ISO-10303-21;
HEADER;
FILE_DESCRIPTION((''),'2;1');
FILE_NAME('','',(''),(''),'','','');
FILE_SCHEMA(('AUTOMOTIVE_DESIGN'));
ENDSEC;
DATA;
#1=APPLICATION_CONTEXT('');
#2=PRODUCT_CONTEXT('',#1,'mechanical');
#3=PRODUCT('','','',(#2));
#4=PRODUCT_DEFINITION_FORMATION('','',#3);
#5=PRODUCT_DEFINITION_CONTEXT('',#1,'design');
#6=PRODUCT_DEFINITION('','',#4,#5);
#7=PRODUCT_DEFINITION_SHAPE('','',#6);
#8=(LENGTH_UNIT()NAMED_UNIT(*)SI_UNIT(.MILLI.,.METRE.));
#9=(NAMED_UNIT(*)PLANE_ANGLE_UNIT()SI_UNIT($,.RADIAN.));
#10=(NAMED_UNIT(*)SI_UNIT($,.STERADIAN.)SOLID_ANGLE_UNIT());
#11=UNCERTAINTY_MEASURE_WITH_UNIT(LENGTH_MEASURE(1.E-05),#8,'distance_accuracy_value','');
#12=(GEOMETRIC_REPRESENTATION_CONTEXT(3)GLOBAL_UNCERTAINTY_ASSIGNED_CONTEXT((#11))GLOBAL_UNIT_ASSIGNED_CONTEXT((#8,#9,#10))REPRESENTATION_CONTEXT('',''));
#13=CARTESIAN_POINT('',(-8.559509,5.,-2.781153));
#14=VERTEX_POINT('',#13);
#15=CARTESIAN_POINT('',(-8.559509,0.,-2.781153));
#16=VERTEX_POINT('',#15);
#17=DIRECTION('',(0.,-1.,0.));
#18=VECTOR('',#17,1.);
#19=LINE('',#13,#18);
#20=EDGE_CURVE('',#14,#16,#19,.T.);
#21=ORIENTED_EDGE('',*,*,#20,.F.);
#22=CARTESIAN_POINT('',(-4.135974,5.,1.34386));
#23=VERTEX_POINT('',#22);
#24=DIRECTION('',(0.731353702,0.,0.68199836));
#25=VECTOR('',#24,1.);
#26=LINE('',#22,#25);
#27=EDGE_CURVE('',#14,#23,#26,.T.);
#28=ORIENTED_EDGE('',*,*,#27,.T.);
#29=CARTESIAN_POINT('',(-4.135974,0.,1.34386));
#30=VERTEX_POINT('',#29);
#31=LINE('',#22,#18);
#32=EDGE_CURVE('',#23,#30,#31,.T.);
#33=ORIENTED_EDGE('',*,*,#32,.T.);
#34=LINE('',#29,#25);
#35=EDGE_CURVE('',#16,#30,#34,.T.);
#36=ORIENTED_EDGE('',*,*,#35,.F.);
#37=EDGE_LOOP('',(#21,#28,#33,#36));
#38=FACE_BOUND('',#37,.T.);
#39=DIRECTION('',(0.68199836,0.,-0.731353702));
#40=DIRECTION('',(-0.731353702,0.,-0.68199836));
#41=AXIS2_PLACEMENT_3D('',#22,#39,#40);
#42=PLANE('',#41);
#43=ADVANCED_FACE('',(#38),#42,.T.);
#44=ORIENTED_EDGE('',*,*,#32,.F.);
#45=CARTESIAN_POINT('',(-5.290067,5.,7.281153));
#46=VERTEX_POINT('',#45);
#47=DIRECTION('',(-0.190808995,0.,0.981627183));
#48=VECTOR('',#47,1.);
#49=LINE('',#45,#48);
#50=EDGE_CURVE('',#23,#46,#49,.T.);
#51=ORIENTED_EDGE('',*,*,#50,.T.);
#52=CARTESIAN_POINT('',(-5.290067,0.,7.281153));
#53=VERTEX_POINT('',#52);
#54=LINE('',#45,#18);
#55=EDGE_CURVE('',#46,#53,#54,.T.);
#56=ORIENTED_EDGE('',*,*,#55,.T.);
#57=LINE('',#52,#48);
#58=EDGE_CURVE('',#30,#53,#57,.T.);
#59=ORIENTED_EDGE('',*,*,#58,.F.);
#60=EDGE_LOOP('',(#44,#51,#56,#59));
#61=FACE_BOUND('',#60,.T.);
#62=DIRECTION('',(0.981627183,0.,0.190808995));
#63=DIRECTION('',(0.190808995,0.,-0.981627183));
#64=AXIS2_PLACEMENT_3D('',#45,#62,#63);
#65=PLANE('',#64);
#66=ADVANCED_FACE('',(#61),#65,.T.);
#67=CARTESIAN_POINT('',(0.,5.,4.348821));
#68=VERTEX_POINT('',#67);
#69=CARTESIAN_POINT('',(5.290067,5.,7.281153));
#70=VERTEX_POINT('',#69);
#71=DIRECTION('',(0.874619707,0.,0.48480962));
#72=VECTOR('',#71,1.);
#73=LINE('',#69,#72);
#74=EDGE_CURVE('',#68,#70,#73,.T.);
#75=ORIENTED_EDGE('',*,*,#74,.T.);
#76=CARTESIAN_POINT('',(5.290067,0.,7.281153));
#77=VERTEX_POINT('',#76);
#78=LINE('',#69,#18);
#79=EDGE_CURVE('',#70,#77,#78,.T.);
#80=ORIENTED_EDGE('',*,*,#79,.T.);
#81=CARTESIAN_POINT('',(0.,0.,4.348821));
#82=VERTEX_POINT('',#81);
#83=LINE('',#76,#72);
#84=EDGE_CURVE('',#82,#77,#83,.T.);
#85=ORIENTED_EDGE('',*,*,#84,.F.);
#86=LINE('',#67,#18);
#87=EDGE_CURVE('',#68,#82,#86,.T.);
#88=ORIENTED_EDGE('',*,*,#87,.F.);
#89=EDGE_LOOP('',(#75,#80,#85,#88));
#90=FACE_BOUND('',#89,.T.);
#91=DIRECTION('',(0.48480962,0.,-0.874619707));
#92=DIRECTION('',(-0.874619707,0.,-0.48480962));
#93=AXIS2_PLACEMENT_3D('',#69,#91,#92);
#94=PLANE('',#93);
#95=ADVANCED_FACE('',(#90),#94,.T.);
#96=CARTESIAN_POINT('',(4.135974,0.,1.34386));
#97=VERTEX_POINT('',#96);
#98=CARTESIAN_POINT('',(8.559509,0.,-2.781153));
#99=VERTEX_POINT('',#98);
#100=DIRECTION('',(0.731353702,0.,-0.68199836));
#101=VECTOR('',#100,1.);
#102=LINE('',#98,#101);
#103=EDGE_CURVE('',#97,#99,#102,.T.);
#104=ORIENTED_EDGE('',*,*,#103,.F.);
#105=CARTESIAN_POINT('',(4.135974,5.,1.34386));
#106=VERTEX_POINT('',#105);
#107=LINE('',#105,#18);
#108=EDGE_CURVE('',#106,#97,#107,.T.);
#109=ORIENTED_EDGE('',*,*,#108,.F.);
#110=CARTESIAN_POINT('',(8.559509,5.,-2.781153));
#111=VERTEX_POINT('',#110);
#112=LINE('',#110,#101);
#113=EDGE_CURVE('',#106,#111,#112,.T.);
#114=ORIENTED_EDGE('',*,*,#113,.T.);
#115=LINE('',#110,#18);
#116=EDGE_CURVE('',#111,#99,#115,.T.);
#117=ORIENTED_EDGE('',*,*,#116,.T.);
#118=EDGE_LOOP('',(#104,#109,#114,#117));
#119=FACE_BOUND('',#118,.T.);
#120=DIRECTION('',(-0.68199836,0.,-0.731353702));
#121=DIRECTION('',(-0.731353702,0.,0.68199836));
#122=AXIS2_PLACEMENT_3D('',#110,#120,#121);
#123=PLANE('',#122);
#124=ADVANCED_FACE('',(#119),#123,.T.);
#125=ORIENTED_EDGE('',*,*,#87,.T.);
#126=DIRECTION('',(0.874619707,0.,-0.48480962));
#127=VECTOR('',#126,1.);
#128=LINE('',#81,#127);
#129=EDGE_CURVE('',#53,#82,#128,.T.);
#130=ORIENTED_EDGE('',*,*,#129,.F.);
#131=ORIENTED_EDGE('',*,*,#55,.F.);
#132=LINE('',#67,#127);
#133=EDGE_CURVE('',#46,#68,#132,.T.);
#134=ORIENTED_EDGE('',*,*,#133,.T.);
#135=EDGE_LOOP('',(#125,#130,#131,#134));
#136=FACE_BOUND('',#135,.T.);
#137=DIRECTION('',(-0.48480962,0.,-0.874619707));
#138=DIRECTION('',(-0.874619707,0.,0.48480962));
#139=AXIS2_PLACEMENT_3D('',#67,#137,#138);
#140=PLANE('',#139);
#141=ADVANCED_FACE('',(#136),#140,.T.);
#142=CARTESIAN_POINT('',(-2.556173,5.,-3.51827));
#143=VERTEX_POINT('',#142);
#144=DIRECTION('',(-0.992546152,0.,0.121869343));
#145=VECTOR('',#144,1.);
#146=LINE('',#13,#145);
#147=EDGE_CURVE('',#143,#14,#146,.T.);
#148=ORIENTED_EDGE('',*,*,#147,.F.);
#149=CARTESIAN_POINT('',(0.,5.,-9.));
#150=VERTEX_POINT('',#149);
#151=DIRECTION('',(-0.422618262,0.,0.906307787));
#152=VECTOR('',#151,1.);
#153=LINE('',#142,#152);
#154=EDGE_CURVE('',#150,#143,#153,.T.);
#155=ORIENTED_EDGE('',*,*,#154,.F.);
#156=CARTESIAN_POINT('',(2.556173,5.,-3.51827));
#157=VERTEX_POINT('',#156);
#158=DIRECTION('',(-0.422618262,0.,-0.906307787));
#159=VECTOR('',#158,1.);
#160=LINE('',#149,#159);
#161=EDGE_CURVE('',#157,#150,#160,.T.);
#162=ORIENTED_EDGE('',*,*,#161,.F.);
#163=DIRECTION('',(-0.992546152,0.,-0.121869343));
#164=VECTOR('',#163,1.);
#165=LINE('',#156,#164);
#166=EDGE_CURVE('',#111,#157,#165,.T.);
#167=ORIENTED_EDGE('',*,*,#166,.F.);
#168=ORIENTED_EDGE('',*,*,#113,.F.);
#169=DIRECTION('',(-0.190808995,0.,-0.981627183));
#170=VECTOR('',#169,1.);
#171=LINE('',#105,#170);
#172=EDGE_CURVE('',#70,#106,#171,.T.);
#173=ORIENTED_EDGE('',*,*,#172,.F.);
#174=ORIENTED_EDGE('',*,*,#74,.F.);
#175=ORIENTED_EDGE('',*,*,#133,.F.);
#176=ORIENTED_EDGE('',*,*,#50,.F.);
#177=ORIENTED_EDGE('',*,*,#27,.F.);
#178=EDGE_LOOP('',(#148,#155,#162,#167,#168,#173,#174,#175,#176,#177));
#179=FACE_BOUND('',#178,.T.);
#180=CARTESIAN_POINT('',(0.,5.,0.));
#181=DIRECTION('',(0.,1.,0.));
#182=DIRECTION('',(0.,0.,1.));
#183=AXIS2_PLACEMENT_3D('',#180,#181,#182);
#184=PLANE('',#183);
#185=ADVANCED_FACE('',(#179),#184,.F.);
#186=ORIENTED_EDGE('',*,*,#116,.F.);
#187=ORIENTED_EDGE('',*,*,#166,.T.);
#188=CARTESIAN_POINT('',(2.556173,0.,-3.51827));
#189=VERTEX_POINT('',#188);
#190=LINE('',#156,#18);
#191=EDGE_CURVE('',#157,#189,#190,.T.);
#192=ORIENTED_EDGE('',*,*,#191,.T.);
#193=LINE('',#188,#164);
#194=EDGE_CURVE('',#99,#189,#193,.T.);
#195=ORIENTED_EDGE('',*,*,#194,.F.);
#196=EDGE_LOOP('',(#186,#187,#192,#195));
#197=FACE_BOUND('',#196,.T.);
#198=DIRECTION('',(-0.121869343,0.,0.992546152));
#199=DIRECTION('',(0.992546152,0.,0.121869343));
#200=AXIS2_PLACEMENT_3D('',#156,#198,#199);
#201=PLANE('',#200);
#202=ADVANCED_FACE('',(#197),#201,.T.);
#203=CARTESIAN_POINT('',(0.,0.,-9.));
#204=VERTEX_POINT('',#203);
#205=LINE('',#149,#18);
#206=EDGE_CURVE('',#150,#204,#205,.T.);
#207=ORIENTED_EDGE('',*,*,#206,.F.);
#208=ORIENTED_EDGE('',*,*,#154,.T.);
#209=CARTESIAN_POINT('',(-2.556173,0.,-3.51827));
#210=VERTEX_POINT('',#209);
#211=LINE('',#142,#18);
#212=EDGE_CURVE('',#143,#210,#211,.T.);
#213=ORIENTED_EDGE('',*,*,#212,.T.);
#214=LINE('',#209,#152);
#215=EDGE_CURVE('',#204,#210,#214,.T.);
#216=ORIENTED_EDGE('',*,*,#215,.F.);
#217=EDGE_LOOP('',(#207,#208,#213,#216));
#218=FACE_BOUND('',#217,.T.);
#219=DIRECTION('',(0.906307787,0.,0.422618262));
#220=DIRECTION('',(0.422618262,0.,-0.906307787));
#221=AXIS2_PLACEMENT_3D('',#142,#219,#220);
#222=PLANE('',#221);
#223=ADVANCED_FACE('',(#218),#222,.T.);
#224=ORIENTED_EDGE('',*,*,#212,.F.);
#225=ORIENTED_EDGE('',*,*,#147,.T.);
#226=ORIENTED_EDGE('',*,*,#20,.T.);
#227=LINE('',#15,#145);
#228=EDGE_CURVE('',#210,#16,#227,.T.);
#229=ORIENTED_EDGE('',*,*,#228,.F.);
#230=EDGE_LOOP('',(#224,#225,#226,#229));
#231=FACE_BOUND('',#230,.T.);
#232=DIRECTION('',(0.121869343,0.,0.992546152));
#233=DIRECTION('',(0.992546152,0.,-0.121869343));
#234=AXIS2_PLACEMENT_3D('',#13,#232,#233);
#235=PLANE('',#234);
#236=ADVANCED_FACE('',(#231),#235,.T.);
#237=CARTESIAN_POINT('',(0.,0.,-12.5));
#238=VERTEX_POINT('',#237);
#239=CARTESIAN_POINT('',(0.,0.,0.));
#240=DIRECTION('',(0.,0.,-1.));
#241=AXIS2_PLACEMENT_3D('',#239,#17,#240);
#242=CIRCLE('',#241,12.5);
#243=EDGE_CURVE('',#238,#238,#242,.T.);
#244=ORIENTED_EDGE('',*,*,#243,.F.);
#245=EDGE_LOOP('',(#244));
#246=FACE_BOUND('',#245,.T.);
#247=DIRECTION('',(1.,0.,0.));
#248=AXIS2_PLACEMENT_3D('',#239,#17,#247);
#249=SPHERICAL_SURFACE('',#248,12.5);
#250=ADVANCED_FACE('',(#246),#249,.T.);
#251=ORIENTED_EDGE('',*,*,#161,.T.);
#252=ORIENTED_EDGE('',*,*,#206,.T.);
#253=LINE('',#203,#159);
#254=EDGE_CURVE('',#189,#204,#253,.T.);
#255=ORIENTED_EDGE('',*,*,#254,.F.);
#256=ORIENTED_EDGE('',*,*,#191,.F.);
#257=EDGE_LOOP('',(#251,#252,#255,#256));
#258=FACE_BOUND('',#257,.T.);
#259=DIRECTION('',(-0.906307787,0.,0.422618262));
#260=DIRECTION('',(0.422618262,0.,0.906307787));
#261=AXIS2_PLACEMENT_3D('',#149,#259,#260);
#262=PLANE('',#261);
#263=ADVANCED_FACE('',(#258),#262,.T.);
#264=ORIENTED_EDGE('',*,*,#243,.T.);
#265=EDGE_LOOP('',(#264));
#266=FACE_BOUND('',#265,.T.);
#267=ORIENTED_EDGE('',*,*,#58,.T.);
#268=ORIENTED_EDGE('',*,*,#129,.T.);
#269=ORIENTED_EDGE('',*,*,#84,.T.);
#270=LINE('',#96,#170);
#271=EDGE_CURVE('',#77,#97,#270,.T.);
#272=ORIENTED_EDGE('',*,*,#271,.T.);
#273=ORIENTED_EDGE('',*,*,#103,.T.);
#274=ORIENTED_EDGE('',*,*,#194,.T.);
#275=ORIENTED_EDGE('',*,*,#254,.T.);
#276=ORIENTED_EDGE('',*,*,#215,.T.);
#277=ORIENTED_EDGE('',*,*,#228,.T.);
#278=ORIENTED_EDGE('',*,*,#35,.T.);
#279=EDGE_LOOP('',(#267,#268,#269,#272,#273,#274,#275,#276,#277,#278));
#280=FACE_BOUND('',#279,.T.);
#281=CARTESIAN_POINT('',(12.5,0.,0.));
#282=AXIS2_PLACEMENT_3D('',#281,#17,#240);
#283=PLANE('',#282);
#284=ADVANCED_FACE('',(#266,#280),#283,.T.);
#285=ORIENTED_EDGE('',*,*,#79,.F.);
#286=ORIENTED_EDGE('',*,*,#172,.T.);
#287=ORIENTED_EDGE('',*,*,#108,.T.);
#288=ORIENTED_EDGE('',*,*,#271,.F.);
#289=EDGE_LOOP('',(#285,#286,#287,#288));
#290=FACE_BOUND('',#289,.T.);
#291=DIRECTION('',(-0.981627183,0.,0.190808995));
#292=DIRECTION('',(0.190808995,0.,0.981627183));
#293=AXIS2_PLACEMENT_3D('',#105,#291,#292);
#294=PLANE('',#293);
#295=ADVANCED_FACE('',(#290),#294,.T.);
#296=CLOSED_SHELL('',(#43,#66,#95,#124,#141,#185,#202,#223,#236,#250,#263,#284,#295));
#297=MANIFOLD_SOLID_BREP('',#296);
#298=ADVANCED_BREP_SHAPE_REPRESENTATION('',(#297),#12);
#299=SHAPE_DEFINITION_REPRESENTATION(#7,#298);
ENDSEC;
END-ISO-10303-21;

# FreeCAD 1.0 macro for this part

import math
import FreeCAD as App
import Part
import Sketcher

V = App.Vector
Q = App.Units.Quantity

doc = App.newDocument("Part")
params = doc.addObject("Spreadsheet::Sheet", "Params")
for row, (alias, value) in enumerate([
    ("sketch1_radius", "12.5 mm"),
    ("revolution_angle", "360 deg"),
    ("pocket1_length", "5 mm"),
], start=1):
    params.set(f"A{row}", alias)
    params.set(f"B{row}", "=" + value)
    params.setAlias(f"B{row}", alias)

body = doc.addObject("PartDesign::Body", "Body")

sketch1 = doc.addObject("Sketcher::SketchObject", "Sketch")
body.addObject(sketch1)
sketch1.AttachmentSupport = (doc.XY_Plane, [""])
sketch1.MapMode = "FlatFace"
sketch1.addGeometry(Part.LineSegment(V(0, 0, 0), V(12, 0, 0)), False)
sketch1.addGeometry(Part.ArcOfCircle(Part.Circle(V(0, 0, 0), V(0, 0, 1), 12), math.radians(0), math.radians(90)), False)
sketch1.addGeometry(Part.LineSegment(V(0, 12, 0), V(0, 0, 0)), False)
sketch1.addConstraint(Sketcher.Constraint("Coincident", 0, 2, 1, 1))
sketch1.addConstraint(Sketcher.Constraint("Coincident", 1, 2, 2, 1))
sketch1.addConstraint(Sketcher.Constraint("Coincident", 2, 2, 0, 1))
sketch1.addConstraint(Sketcher.Constraint("Horizontal", 0))
sketch1.addConstraint(Sketcher.Constraint("Vertical", 2))
sketch1.addConstraint(Sketcher.Constraint("Coincident", 1, 3, -1, 1))
sketch1.addConstraint(Sketcher.Constraint("Coincident", 2, 2, -1, 1))
sketch1.addConstraint(Sketcher.Constraint("Radius", 1, Q("12.5 mm")))
sketch1.setExpression("Constraints[7]", "Params.sketch1_radius")
revolution = doc.addObject("PartDesign::Revolution", "Revolution")
body.addObject(revolution)
revolution.Profile = sketch1
revolution.ReferenceAxis = (sketch1, ["V_Axis"])
revolution.setExpression("Angle", "Params.revolution_angle")

sketch2 = doc.addObject("Sketcher::SketchObject", "Sketch001")
body.addObject(sketch2)
sketch2.AttachmentSupport = (doc.XZ_Plane, [""])
sketch2.MapMode = "FlatFace"
sketch2.addGeometry(Part.LineSegment(V(3, -4, 0), V(0, -9, 0)), False)
sketch2.addGeometry(Part.LineSegment(V(0, -9, 0), V(-3, -4, 0)), False)
sketch2.addGeometry(Part.LineSegment(V(-3, -4, 0), V(-9, -3, 0)), False)
sketch2.addGeometry(Part.LineSegment(V(-9, -3, 0), V(-4, 1, 0)), False)
sketch2.addGeometry(Part.LineSegment(V(-4, 1, 0), V(-5, 7, 0)), False)
sketch2.addGeometry(Part.LineSegment(V(-5, 7, 0), V(0, 4, 0)), False)
sketch2.addGeometry(Part.LineSegment(V(0, 4, 0), V(5, 7, 0)), False)
sketch2.addGeometry(Part.LineSegment(V(5, 7, 0), V(4, 1, 0)), False)
sketch2.addGeometry(Part.LineSegment(V(4, 1, 0), V(9, -3, 0)), False)
sketch2.addGeometry(Part.LineSegment(V(9, -3, 0), V(3, -4, 0)), False)
sketch2.addConstraint(Sketcher.Constraint("Coincident", 0, 2, 1, 1))
sketch2.addConstraint(Sketcher.Constraint("Coincident", 1, 2, 2, 1))
sketch2.addConstraint(Sketcher.Constraint("Coincident", 2, 2, 3, 1))
sketch2.addConstraint(Sketcher.Constraint("Coincident", 3, 2, 4, 1))
sketch2.addConstraint(Sketcher.Constraint("Coincident", 4, 2, 5, 1))
sketch2.addConstraint(Sketcher.Constraint("Coincident", 5, 2, 6, 1))
sketch2.addConstraint(Sketcher.Constraint("Coincident", 6, 2, 7, 1))
sketch2.addConstraint(Sketcher.Constraint("Coincident", 7, 2, 8, 1))
sketch2.addConstraint(Sketcher.Constraint("Coincident", 8, 2, 9, 1))
sketch2.addConstraint(Sketcher.Constraint("Coincident", 9, 2, 0, 1))
sketch2.addConstraint(Sketcher.Constraint("Symmetric", 4, 2, 6, 2, -2))
sketch2.addConstraint(Sketcher.Constraint("Symmetric", 3, 2, 7, 2, -2))
sketch2.addConstraint(Sketcher.Constraint("Symmetric", 2, 2, 8, 2, -2))
sketch2.addConstraint(Sketcher.Constraint("Symmetric", 1, 2, 9, 2, -2))
sketch2.addConstraint(Sketcher.Constraint("PointOnObject", 0, 2, -2))
sketch2.addConstraint(Sketcher.Constraint("PointOnObject", 5, 2, -2))
sketch2.addConstraint(Sketcher.Constraint("Equal", 1, 2))
sketch2.addConstraint(Sketcher.Constraint("Equal", 2, 3))
sketch2.addConstraint(Sketcher.Constraint("Equal", 3, 4))
sketch2.addConstraint(Sketcher.Constraint("Equal", 4, 5))
sketch2.addConstraint(Sketcher.Constraint("Angle", 0, Q("-115 deg")))
sketch2.addConstraint(Sketcher.Constraint("Angle", 2, Q("173 deg")))
sketch2.addConstraint(Sketcher.Constraint("Angle", 3, Q("43 deg")))
sketch2.addConstraint(Sketcher.Constraint("Angle", 4, Q("101 deg")))
sketch2.addConstraint(Sketcher.Constraint("DistanceY", 0, 2, -1, 1, Q("9 mm")))
sketch2.addConstraint(Sketcher.Constraint("DistanceX", 3, 2, 1, 2, Q("1.579802 mm")))
pocket1 = doc.addObject("PartDesign::Pocket", "Pocket")
body.addObject(pocket1)
pocket1.Profile = sketch2
pocket1.setExpression("Length", "Params.pocket1_length")

doc.recompute()
